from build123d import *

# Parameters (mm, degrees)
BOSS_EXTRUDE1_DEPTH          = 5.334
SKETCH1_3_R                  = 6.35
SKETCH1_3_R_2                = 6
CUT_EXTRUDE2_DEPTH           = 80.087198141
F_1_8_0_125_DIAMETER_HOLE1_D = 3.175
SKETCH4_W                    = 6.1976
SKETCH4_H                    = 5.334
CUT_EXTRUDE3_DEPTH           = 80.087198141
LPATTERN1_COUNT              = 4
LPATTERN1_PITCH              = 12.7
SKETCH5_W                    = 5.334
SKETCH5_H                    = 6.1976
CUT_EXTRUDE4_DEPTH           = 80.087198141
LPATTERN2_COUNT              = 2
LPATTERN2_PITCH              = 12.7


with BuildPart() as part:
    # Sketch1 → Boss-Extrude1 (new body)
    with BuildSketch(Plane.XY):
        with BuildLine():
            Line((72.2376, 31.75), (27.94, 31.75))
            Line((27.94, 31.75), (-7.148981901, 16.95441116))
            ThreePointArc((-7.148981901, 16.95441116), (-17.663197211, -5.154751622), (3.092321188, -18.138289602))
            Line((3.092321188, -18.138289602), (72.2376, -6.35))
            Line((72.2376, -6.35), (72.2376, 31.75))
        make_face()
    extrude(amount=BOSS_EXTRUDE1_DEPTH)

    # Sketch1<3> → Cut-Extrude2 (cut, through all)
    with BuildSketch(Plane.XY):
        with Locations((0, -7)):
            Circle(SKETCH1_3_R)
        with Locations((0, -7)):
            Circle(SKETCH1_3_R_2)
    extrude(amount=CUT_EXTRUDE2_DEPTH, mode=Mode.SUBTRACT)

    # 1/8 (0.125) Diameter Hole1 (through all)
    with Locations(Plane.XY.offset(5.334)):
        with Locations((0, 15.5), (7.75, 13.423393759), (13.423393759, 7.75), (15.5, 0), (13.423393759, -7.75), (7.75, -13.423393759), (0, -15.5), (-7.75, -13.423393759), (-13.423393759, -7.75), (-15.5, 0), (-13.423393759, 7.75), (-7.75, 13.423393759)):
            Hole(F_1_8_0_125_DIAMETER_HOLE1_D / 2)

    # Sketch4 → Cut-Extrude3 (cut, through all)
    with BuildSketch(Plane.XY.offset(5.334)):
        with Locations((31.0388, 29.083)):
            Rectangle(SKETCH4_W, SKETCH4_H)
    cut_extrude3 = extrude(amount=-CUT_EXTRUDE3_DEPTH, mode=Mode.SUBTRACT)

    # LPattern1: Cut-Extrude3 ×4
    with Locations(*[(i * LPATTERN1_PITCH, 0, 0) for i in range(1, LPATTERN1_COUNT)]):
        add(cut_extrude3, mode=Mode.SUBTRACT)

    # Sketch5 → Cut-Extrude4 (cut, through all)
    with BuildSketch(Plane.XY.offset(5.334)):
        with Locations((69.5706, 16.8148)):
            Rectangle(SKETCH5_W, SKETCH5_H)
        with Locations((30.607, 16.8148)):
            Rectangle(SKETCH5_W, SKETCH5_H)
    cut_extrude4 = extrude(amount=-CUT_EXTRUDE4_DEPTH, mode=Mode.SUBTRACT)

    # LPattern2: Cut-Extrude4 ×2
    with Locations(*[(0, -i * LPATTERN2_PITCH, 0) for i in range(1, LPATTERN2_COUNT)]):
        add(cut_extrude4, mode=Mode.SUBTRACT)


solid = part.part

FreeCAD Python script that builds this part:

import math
import FreeCAD as App
import Part
import Sketcher
from FreeCAD import Vector
Q = App.Units.Quantity

doc = App.newDocument("Part")
body = doc.addObject("PartDesign::Body", "Body")

sketch1 = body.newObject("Sketcher::SketchObject", "Sketch")
sketch1.AttachmentSupport = (doc.getObject("XY_Plane"), [""])
sketch1.MapMode = "FlatFace"
sketch1.addGeometry([
    Part.LineSegment(Vector(72, 32, 0), Vector(28, 32, 0)),
    Part.LineSegment(Vector(28, 32, 0), Vector(-7, 17, 0)),
    Part.ArcOfCircle(Part.Circle(Vector(0, 0, 0), Vector(0, 0, 1), 18), math.radians(113), math.radians(280)),
    Part.LineSegment(Vector(3, -18, 0), Vector(72, -6, 0)),
    Part.LineSegment(Vector(72, -6, 0), Vector(72, 32, 0)),
], False)
sketch1.addConstraint([
    Sketcher.Constraint("Coincident", 0, 2, 1, 1),
    Sketcher.Constraint("Tangent", 1, 2, 2, 1),
    Sketcher.Constraint("Tangent", 2, 2, 3, 1),
    Sketcher.Constraint("Coincident", 3, 2, 4, 1),
    Sketcher.Constraint("Coincident", 4, 2, 0, 1),
    Sketcher.Constraint("Horizontal", 0),
    Sketcher.Constraint("Vertical", 4),
    Sketcher.Constraint("Coincident", 2, 3, -1, 1),
    Sketcher.Constraint("DistanceY", 4, 1, 4, 2, Q("1.5 in")),
    Sketcher.Constraint("DistanceX", -1, 1, 0, 2, Q("1.1 in")),
    Sketcher.Constraint("DistanceX", 0, 2, 0, 1, Q("1.744 in")),
    Sketcher.Constraint("DistanceY", -1, 1, 0, 2, Q("1.25 in")),
    Sketcher.Constraint("Radius", 2, 18.4),
])
pad1 = body.newObject("PartDesign::Pad", "Pad")
pad1.Profile = sketch1
pad1.Length = Q("0.21 in")

sketch2 = body.newObject("Sketcher::SketchObject", "Sketch001")
sketch2.AttachmentSupport = (doc.getObject("XY_Plane"), [""])
sketch2.MapMode = "FlatFace"
sketch2.addGeometry(Part.Circle(Vector(0, -7, 0), Vector(0, 0, 1), 6), False)
sketch2.addConstraint([
    Sketcher.Constraint("PointOnObject", 0, 3, -2),
    Sketcher.Constraint("Diameter", 0, Q("0.5 in")),
    Sketcher.Constraint("DistanceY", 0, 3, -1, 1, 7.0),
])
pocket1 = body.newObject("PartDesign::Pocket", "Pocket")
pocket1.Profile = sketch2
pocket1.Type = "ThroughAll"
pocket1.Reversed = True

sketch3 = body.newObject("Sketcher::SketchObject", "Sketch002")
sketch3.AttachmentSupport = (doc.getObject("XY_Plane"), [""])
sketch3.MapMode = "FlatFace"
sketch3.AttachmentOffset = App.Placement(Vector(0, 0, 0.21 * 25.4), App.Rotation())
sketch3.addGeometry([
    Part.Circle(Vector(0, 15.5, 0), Vector(0, 0, 1), 1.6),
    Part.Circle(Vector(7.8, 13.4, 0), Vector(0, 0, 1), 1.6),
    Part.Circle(Vector(13.4, 7.8, 0), Vector(0, 0, 1), 1.6),
    Part.Circle(Vector(15.5, 0, 0), Vector(0, 0, 1), 1.6),
    Part.Circle(Vector(13.4, -7.8, 0), Vector(0, 0, 1), 1.6),
    Part.Circle(Vector(7.8, -13.4, 0), Vector(0, 0, 1), 1.6),
    Part.Circle(Vector(0, -15.5, 0), Vector(0, 0, 1), 1.6),
    Part.Circle(Vector(-7.8, -13.4, 0), Vector(0, 0, 1), 1.6),
    Part.Circle(Vector(-13.4, -7.8, 0), Vector(0, 0, 1), 1.6),
    Part.Circle(Vector(-15.5, 0, 0), Vector(0, 0, 1), 1.6),
    Part.Circle(Vector(-13.4, 7.8, 0), Vector(0, 0, 1), 1.6),
    Part.Circle(Vector(-7.8, 13.4, 0), Vector(0, 0, 1), 1.6),
], False)
sketch3.addConstraint([
    Sketcher.Constraint("Equal", 0, 1),
    Sketcher.Constraint("Equal", 1, 2),
    Sketcher.Constraint("Equal", 2, 3),
    Sketcher.Constraint("Equal", 3, 4),
    Sketcher.Constraint("Equal", 4, 5),
    Sketcher.Constraint("Equal", 5, 6),
    Sketcher.Constraint("Equal", 6, 7),
    Sketcher.Constraint("Equal", 7, 8),
    Sketcher.Constraint("Equal", 8, 9),
    Sketcher.Constraint("Equal", 9, 10),
    Sketcher.Constraint("Equal", 10, 11),
    Sketcher.Constraint("Symmetric", 0, 3, 6, 3, -1, 1),
    Sketcher.Constraint("Symmetric", 1, 3, 7, 3, -1, 1),
    Sketcher.Constraint("Symmetric", 2, 3, 8, 3, -1, 1),
    Sketcher.Constraint("Symmetric", 3, 3, 9, 3, -1, 1),
    Sketcher.Constraint("Symmetric", 4, 3, 10, 3, -1, 1),
    Sketcher.Constraint("Symmetric", 5, 3, 11, 3, -1, 1),
    Sketcher.Constraint("Symmetric", 5, 3, 7, 3, -2),
    Sketcher.Constraint("Symmetric", 4, 3, 8, 3, -2),
    Sketcher.Constraint("PointOnObject", 0, 3, -2),
    Sketcher.Constraint("PointOnObject", 3, 3, -1),
    Sketcher.Constraint("Diameter", 0, Q("0.125 in")),
    Sketcher.Constraint("DistanceY", -1, 1, 0, 3, 15.5),
    Sketcher.Constraint("DistanceX", -1, 1, 1, 3, 7.75),
    Sketcher.Constraint("DistanceY", -1, 1, 2, 3, 7.75),
    Sketcher.Constraint("DistanceX", -1, 1, 3, 3, 15.5),
    Sketcher.Constraint("DistanceY", -1, 1, 1, 3, 13.423394),
    Sketcher.Constraint("DistanceX", -1, 1, 2, 3, 13.423394),
])
doc.recompute()
hole = body.newObject("PartDesign::Hole", "Hole")
hole.Profile = sketch3
hole.ThreadType = "None"
hole.Diameter = Q("0.125 in")
hole.DepthType = "ThroughAll"

sketch4 = body.newObject("Sketcher::SketchObject", "Sketch003")
sketch4.AttachmentSupport = (doc.getObject("XY_Plane"), [""])
sketch4.MapMode = "FlatFace"
sketch4.AttachmentOffset = App.Placement(Vector(0, 0, 0.21 * 25.4), App.Rotation())
sketch4.addGeometry([
    Part.LineSegment(Vector(28, 32, 0), Vector(28, 26, 0)),
    Part.LineSegment(Vector(28, 26, 0), Vector(34, 26, 0)),
    Part.LineSegment(Vector(34, 26, 0), Vector(34, 32, 0)),
    Part.LineSegment(Vector(34, 32, 0), Vector(28, 32, 0)),
], False)
sketch4.addConstraint([
    Sketcher.Constraint("Coincident", 0, 2, 1, 1),
    Sketcher.Constraint("Coincident", 1, 2, 2, 1),
    Sketcher.Constraint("Coincident", 2, 2, 3, 1),
    Sketcher.Constraint("Coincident", 3, 2, 0, 1),
    Sketcher.Constraint("Vertical", 0),
    Sketcher.Constraint("Horizontal", 1),
    Sketcher.Constraint("Vertical", 2),
    Sketcher.Constraint("Horizontal", 3),
    Sketcher.Constraint("DistanceY", 0, 2, 0, 1, Q("0.21 in")),
    Sketcher.Constraint("DistanceX", -1, 1, 0, 2, Q("1.1 in")),
    Sketcher.Constraint("DistanceX", 1, 1, 1, 2, Q("0.244 in")),
    Sketcher.Constraint("DistanceY", -1, 1, 0, 2, Q("1.04 in")),
])
pocket2 = body.newObject("PartDesign::Pocket", "Pocket001")
pocket2.Profile = sketch4
pocket2.Type = "ThroughAll"
doc.recompute()

linearpattern = body.newObject("PartDesign::LinearPattern", "LinearPattern")
linearpattern.Originals = [pocket2]
linearpattern.Direction = (doc.getObject("X_Axis"), [""])
linearpattern.Mode = "offset"
linearpattern.Offset = Q("0.5 in")
linearpattern.Occurrences = 4
body.Tip = linearpattern

sketch5 = body.newObject("Sketcher::SketchObject", "Sketch004")
sketch5.AttachmentSupport = (doc.getObject("XY_Plane"), [""])
sketch5.MapMode = "FlatFace"
sketch5.AttachmentOffset = App.Placement(Vector(0, 0, 0.21 * 25.4), App.Rotation())
sketch5.addGeometry([
    Part.LineSegment(Vector(67, 20, 0), Vector(67, 14, 0)),
    Part.LineSegment(Vector(67, 14, 0), Vector(72, 14, 0)),
    Part.LineSegment(Vector(72, 14, 0), Vector(72, 20, 0)),
    Part.LineSegment(Vector(72, 20, 0), Vector(67, 20, 0)),
    Part.LineSegment(Vector(28, 20, 0), Vector(28, 14, 0)),
    Part.LineSegment(Vector(28, 14, 0), Vector(33, 14, 0)),
    Part.LineSegment(Vector(33, 14, 0), Vector(33, 20, 0)),
    Part.LineSegment(Vector(33, 20, 0), Vector(28, 20, 0)),
], False)
sketch5.addConstraint([
    Sketcher.Constraint("Coincident", 0, 2, 1, 1),
    Sketcher.Constraint("Coincident", 1, 2, 2, 1),
    Sketcher.Constraint("Coincident", 2, 2, 3, 1),
    Sketcher.Constraint("Coincident", 3, 2, 0, 1),
    Sketcher.Constraint("Coincident", 4, 2, 5, 1),
    Sketcher.Constraint("Coincident", 5, 2, 6, 1),
    Sketcher.Constraint("Coincident", 6, 2, 7, 1),
    Sketcher.Constraint("Coincident", 7, 2, 4, 1),
    Sketcher.Constraint("Vertical", 0),
    Sketcher.Constraint("Horizontal", 1),
    Sketcher.Constraint("Vertical", 2),
    Sketcher.Constraint("Horizontal", 3),
    Sketcher.Constraint("Vertical", 4),
    Sketcher.Constraint("Horizontal", 5),
    Sketcher.Constraint("Vertical", 6),
    Sketcher.Constraint("Horizontal", 7),
    Sketcher.Constraint("Horizontal", 1, 2, 4, 2),
    Sketcher.Constraint("Horizontal", 3, 2, 6, 2),
    Sketcher.Constraint("Equal", 3, 5),
    Sketcher.Constraint("DistanceX", 1, 1, 1, 2, Q("0.21 in")),
    Sketcher.Constraint("DistanceX", -1, 1, 4, 2, Q("1.1 in")),
    Sketcher.Constraint("DistanceY", 0, 2, 0, 1, Q("0.244 in")),
    Sketcher.Constraint("DistanceY", -1, 1, 0, 2, Q("0.54 in")),
    Sketcher.Constraint("DistanceX", -1, 1, 0, 2, Q("2.634 in")),
])
pocket3 = body.newObject("PartDesign::Pocket", "Pocket002")
pocket3.Profile = sketch5
pocket3.Type = "ThroughAll"
doc.recompute()

linearpattern2 = body.newObject("PartDesign::LinearPattern", "LinearPattern001")
linearpattern2.Originals = [pocket3]
linearpattern2.Direction = (doc.getObject("Y_Axis"), [""])
linearpattern2.Mode = "offset"
linearpattern2.Offset = Q("0.5 in")
linearpattern2.Occurrences = 2
linearpattern2.Reversed = True
body.Tip = linearpattern2

doc.recompute()
